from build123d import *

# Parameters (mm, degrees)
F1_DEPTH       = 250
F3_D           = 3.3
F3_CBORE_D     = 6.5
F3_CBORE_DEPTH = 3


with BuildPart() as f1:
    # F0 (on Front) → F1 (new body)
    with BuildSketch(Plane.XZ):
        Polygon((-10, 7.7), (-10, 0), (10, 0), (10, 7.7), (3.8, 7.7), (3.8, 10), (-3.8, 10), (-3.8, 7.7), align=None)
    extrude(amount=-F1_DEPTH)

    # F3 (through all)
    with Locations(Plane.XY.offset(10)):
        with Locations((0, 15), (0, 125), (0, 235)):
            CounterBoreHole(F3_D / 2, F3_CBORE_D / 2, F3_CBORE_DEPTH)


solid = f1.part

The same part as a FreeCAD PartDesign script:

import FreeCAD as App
import Part
import Sketcher

V = App.Vector
Q = App.Units.Quantity


def add_polygon(sketch, points):
    """Adds a closed chain of lines whose ends are joined by coincident constraints."""
    first, n = sketch.GeometryCount, len(points)
    for a, b in zip(points, points[1:] + points[:1]):
        sketch.addGeometry(Part.LineSegment(App.Vector(*a, 0), App.Vector(*b, 0)), False)
    for i in range(n):
        sketch.addConstraint(Sketcher.Constraint("Coincident", first + i, 2, first + (i + 1) % n, 1))

doc = App.newDocument("Part")
body = doc.addObject("PartDesign::Body", "Body")

sketch1 = doc.addObject("Sketcher::SketchObject", "Sketch")
body.addObject(sketch1)
sketch1.AttachmentSupport = (doc.XZ_Plane, [""])
sketch1.MapMode = "FlatFace"
add_polygon(sketch1, [(-10, 7.7), (-10, 0), (10, 0), (10, 7.7), (3.8, 7.7), (3.8, 10), (-3.8, 10), (-3.8, 7.7)])
sketch1.addConstraint([
    Sketcher.Constraint("Vertical", 0),
    Sketcher.Constraint("Horizontal", 1),
    Sketcher.Constraint("Vertical", 2),
    Sketcher.Constraint("Horizontal", 3),
    Sketcher.Constraint("Vertical", 4),
    Sketcher.Constraint("Horizontal", 5),
    Sketcher.Constraint("Vertical", 6),
    Sketcher.Constraint("Horizontal", 7),
    Sketcher.Constraint("Symmetric", 0, 2, 1, 2, -1, 1),
    Sketcher.Constraint("Symmetric", 3, 2, 6, 2, -2),
    Sketcher.Constraint("DistanceX", 1, 1, 1, 2, Q("20 mm")),
    Sketcher.Constraint("DistanceX", 3, 2, 3, 1, Q("6.2 mm")),
    Sketcher.Constraint("DistanceY", 0, 2, 0, 1, Q("7.7 mm")),
    Sketcher.Constraint("DistanceY", 4, 1, 4, 2, Q("2.3 mm")),
])
pad1 = doc.addObject("PartDesign::Pad", "Pad")
body.addObject(pad1)
pad1.Profile = sketch1
pad1.Length = 250
pad1.Reversed = True

sketch2 = doc.addObject("Sketcher::SketchObject", "Sketch001")
body.addObject(sketch2)
sketch2.AttachmentSupport = (doc.XY_Plane, [""])
sketch2.MapMode = "FlatFace"
sketch2.AttachmentOffset = App.Placement(V(0, 0, 10), App.Rotation())
sketch2.addGeometry([
    Part.Circle(V(0, 15, 0), V(0, 0, 1), 1.6),
    Part.Circle(V(0, 125, 0), V(0, 0, 1), 1.6),
    Part.Circle(V(0, 235, 0), V(0, 0, 1), 1.6),
], False)
sketch2.addConstraint([
    Sketcher.Constraint("Equal", 0, 1),
    Sketcher.Constraint("Equal", 1, 2),
    Sketcher.Constraint("PointOnObject", 0, 3, -2),
    Sketcher.Constraint("PointOnObject", 1, 3, -2),
    Sketcher.Constraint("PointOnObject", 2, 3, -2),
    Sketcher.Constraint("Diameter", 0, Q("3.3 mm")),
    Sketcher.Constraint("DistanceY", -1, 1, 0, 3, Q("15 mm")),
    Sketcher.Constraint("DistanceY", -1, 1, 1, 3, Q("125 mm")),
    Sketcher.Constraint("DistanceY", -1, 1, 2, 3, Q("235 mm")),
])
doc.recompute()
hole = doc.addObject("PartDesign::Hole", "Hole")
body.addObject(hole)
hole.Profile = sketch2
hole.ThreadType = "None"
hole.Diameter = 3.3
hole.DepthType = "ThroughAll"
hole.HoleCutType = "Counterbore"
hole.HoleCutDiameter = 6.5
hole.HoleCutDepth = 3

doc.recompute()
